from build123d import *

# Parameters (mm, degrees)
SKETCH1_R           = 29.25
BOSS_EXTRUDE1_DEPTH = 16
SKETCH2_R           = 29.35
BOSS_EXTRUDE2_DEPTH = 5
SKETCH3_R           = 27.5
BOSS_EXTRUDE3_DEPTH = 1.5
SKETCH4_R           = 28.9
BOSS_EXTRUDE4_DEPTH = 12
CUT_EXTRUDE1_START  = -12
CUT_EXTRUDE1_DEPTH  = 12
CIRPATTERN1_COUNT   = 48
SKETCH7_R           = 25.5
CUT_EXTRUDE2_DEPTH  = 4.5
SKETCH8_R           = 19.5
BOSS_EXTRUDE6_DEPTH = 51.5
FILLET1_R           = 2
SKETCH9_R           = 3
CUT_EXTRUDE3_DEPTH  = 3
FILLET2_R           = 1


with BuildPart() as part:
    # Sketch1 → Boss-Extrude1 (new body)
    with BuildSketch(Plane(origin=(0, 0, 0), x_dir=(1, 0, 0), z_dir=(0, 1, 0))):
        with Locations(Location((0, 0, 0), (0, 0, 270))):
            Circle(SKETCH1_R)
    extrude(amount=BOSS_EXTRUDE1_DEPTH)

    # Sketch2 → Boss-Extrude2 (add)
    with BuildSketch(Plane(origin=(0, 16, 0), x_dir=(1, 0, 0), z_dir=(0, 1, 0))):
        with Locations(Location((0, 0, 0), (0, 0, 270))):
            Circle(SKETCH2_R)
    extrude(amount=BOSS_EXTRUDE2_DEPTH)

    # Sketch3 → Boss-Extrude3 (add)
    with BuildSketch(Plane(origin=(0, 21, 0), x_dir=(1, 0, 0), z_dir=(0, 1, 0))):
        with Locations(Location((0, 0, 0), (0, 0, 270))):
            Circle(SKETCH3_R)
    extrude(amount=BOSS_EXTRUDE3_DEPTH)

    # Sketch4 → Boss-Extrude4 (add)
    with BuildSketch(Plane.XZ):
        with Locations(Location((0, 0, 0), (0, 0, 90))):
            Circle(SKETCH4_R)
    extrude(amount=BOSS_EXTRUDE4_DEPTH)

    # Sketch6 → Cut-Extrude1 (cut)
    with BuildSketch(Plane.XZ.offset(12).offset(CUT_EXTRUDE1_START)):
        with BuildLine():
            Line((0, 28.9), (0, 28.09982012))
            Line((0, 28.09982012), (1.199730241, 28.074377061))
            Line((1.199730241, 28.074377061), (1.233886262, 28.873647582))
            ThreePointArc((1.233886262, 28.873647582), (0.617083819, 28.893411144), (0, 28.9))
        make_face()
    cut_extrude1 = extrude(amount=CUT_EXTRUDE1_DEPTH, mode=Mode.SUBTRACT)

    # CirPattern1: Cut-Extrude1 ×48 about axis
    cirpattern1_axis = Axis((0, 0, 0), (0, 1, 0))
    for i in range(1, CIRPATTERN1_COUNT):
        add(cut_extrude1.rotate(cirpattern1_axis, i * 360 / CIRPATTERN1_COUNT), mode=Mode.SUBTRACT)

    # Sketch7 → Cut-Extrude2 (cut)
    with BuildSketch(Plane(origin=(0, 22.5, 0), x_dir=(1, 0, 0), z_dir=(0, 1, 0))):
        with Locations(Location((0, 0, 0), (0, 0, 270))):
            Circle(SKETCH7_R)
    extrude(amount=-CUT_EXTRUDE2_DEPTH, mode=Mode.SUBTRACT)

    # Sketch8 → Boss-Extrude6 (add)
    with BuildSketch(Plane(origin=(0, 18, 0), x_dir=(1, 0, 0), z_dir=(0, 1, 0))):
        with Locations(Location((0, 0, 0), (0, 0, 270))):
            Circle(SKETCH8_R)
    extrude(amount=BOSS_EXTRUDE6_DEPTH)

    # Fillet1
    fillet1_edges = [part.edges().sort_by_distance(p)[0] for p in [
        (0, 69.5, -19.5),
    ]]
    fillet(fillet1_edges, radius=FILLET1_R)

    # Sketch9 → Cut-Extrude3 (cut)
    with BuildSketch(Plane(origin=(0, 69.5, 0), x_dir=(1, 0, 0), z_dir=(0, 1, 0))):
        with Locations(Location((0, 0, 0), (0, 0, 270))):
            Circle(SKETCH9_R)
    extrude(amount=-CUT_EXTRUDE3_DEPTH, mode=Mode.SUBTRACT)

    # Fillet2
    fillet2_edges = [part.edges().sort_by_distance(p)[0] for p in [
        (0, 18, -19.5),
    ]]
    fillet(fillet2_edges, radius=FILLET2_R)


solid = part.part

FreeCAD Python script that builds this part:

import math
import FreeCAD as App
import Part
import Sketcher
from FreeCAD import Vector
Q = App.Units.Quantity


def edges_at(feature, points):
    """Names of the edges that pass closest to the given points."""
    edges = feature.Shape.Edges
    near = lambda p: min(range(len(edges)), key=lambda i: edges[i].distToShape(Part.Vertex(*p))[0])
    return sorted({f"Edge{near(p) + 1}" for p in points})

doc = App.newDocument("Part")
body = doc.addObject("PartDesign::Body", "Body")

sketch1 = doc.addObject("Sketcher::SketchObject", "Sketch")
body.addObject(sketch1)
sketch1.AttachmentSupport = (doc.XZ_Plane, [""])
sketch1.MapMode = "FlatFace"
sketch1.addGeometry(Part.Circle(Vector(0, 0, 0), Vector(0, 0, 1), 29), False)
sketch1.addConstraint(Sketcher.Constraint("Coincident", 0, 3, -1, 1))
sketch1.addConstraint(Sketcher.Constraint("Diameter", 0, Q("58.5 mm")))
pad1 = doc.addObject("PartDesign::Pad", "Pad")
body.addObject(pad1)
pad1.Profile = sketch1
pad1.Length = 16
pad1.Reversed = True

sketch2 = doc.addObject("Sketcher::SketchObject", "Sketch001")
body.addObject(sketch2)
sketch2.AttachmentSupport = (doc.XZ_Plane, [""])
sketch2.MapMode = "FlatFace"
sketch2.AttachmentOffset = App.Placement(Vector(0, 0, -16), App.Rotation())
sketch2.addGeometry(Part.Circle(Vector(0, 0, 0), Vector(0, 0, 1), 29), False)
sketch2.addConstraint(Sketcher.Constraint("Coincident", 0, 3, -1, 1))
sketch2.addConstraint(Sketcher.Constraint("Diameter", 0, Q("58.7 mm")))
pad2 = doc.addObject("PartDesign::Pad", "Pad001")
body.addObject(pad2)
pad2.Profile = sketch2
pad2.Length = 5
pad2.Reversed = True

sketch3 = doc.addObject("Sketcher::SketchObject", "Sketch002")
body.addObject(sketch3)
sketch3.AttachmentSupport = (doc.XZ_Plane, [""])
sketch3.MapMode = "FlatFace"
sketch3.AttachmentOffset = App.Placement(Vector(0, 0, -21), App.Rotation())
sketch3.addGeometry(Part.Circle(Vector(0, 0, 0), Vector(0, 0, 1), 28), False)
sketch3.addConstraint(Sketcher.Constraint("Coincident", 0, 3, -1, 1))
sketch3.addConstraint(Sketcher.Constraint("Diameter", 0, Q("55 mm")))
pad3 = doc.addObject("PartDesign::Pad", "Pad002")
body.addObject(pad3)
pad3.Profile = sketch3
pad3.Length = 1.5
pad3.Reversed = True

sketch4 = doc.addObject("Sketcher::SketchObject", "Sketch003")
body.addObject(sketch4)
sketch4.AttachmentSupport = (doc.XZ_Plane, [""])
sketch4.MapMode = "FlatFace"
sketch4.addGeometry(Part.Circle(Vector(0, 0, 0), Vector(0, 0, 1), 29), False)
sketch4.addConstraint(Sketcher.Constraint("Coincident", 0, 3, -1, 1))
sketch4.addConstraint(Sketcher.Constraint("Diameter", 0, Q("57.8 mm")))
pad4 = doc.addObject("PartDesign::Pad", "Pad003")
body.addObject(pad4)
pad4.Profile = sketch4
pad4.Length = 12

sketch5 = doc.addObject("Sketcher::SketchObject", "Sketch004")
body.addObject(sketch5)
sketch5.AttachmentSupport = (doc.XZ_Plane, [""])
sketch5.MapMode = "FlatFace"
sketch5.addGeometry(Part.LineSegment(Vector(0, 28.9, 0), Vector(0, 28.1, 0)), False)
sketch5.addGeometry(Part.LineSegment(Vector(0, 28.1, 0), Vector(1.2, 28.1, 0)), False)
sketch5.addGeometry(Part.LineSegment(Vector(1.2, 28.1, 0), Vector(1.2, 28.9, 0)), False)
sketch5.addGeometry(Part.ArcOfCircle(Part.Circle(Vector(0, 0, 0), Vector(0, 0, 1), 28.9), math.radians(87.55), math.radians(90)), False)
sketch5.addConstraint(Sketcher.Constraint("Coincident", 0, 2, 1, 1))
sketch5.addConstraint(Sketcher.Constraint("Coincident", 1, 2, 2, 1))
sketch5.addConstraint(Sketcher.Constraint("Coincident", 2, 2, 3, 1))
sketch5.addConstraint(Sketcher.Constraint("Coincident", 3, 2, 0, 1))
sketch5.addConstraint(Sketcher.Constraint("Vertical", 0))
sketch5.addConstraint(Sketcher.Constraint("Coincident", 3, 3, -1, 1))
sketch5.addConstraint(Sketcher.Constraint("PointOnObject", 0, 2, -2))
sketch5.addConstraint(Sketcher.Constraint("Radius", 3, Q("28.900002 mm")))
sketch5.addConstraint(Sketcher.Constraint("Distance", 1, Q("1.2 mm")))
sketch5.addConstraint(Sketcher.Constraint("Distance", 2, Q("0.8 mm")))
sketch5.addConstraint(Sketcher.Constraint("DistanceY", 0, 2, 0, 1, Q("0.80018 mm")))
sketch5.addConstraint(Sketcher.Constraint("DistanceY", 1, 2, 2, 2, Q("0.799271 mm")))
pocket1 = doc.addObject("PartDesign::Pocket", "Pocket")
body.addObject(pocket1)
pocket1.Profile = sketch5
pocket1.Length = 12
pocket1.Reversed = True
doc.recompute()

polarpattern = doc.addObject("PartDesign::PolarPattern", "PolarPattern")
body.addObject(polarpattern)
polarpattern.Originals = [pocket1]
polarpattern.Axis = (doc.Y_Axis, [""])
polarpattern.Angle = 360
polarpattern.Occurrences = 48
body.Tip = polarpattern

sketch6 = doc.addObject("Sketcher::SketchObject", "Sketch005")
body.addObject(sketch6)
sketch6.AttachmentSupport = (doc.XZ_Plane, [""])
sketch6.MapMode = "FlatFace"
sketch6.AttachmentOffset = App.Placement(Vector(0, 0, -22.5), App.Rotation())
sketch6.addGeometry(Part.Circle(Vector(0, 0, 0), Vector(0, 0, 1), 26), False)
sketch6.addConstraint(Sketcher.Constraint("Coincident", 0, 3, -1, 1))
sketch6.addConstraint(Sketcher.Constraint("Diameter", 0, Q("51 mm")))
pocket2 = doc.addObject("PartDesign::Pocket", "Pocket001")
body.addObject(pocket2)
pocket2.Profile = sketch6
pocket2.Length = 4.5
pocket2.Reversed = True

sketch7 = doc.addObject("Sketcher::SketchObject", "Sketch006")
body.addObject(sketch7)
sketch7.AttachmentSupport = (doc.XZ_Plane, [""])
sketch7.MapMode = "FlatFace"
sketch7.AttachmentOffset = App.Placement(Vector(0, 0, -18), App.Rotation())
sketch7.addGeometry(Part.Circle(Vector(0, 0, 0), Vector(0, 0, 1), 20), False)
sketch7.addConstraint(Sketcher.Constraint("Coincident", 0, 3, -1, 1))
sketch7.addConstraint(Sketcher.Constraint("Diameter", 0, Q("39 mm")))
pad5 = doc.addObject("PartDesign::Pad", "Pad004")
body.addObject(pad5)
pad5.Profile = sketch7
pad5.Length = 51.5
pad5.Reversed = True
doc.recompute()

fillet = doc.addObject("PartDesign::Fillet", "Fillet")
body.addObject(fillet)
fillet.Base = (pad5, edges_at(pad5, [(0, 69.5, -19.5)]))
fillet.Radius = 2

sketch8 = doc.addObject("Sketcher::SketchObject", "Sketch007")
body.addObject(sketch8)
sketch8.AttachmentSupport = (doc.XZ_Plane, [""])
sketch8.MapMode = "FlatFace"
sketch8.AttachmentOffset = App.Placement(Vector(0, 0, -69.5), App.Rotation())
sketch8.addGeometry(Part.Circle(Vector(0, 0, 0), Vector(0, 0, 1), 3), False)
sketch8.addConstraint(Sketcher.Constraint("Coincident", 0, 3, -1, 1))
sketch8.addConstraint(Sketcher.Constraint("Diameter", 0, Q("6 mm")))
pocket3 = doc.addObject("PartDesign::Pocket", "Pocket002")
body.addObject(pocket3)
pocket3.Profile = sketch8
pocket3.Length = 3
pocket3.Reversed = True
doc.recompute()

fillet2 = doc.addObject("PartDesign::Fillet", "Fillet001")
body.addObject(fillet2)
fillet2.Base = (pocket3, edges_at(pocket3, [(0, 18, -19.5)]))
fillet2.Radius = 1

doc.recompute()
